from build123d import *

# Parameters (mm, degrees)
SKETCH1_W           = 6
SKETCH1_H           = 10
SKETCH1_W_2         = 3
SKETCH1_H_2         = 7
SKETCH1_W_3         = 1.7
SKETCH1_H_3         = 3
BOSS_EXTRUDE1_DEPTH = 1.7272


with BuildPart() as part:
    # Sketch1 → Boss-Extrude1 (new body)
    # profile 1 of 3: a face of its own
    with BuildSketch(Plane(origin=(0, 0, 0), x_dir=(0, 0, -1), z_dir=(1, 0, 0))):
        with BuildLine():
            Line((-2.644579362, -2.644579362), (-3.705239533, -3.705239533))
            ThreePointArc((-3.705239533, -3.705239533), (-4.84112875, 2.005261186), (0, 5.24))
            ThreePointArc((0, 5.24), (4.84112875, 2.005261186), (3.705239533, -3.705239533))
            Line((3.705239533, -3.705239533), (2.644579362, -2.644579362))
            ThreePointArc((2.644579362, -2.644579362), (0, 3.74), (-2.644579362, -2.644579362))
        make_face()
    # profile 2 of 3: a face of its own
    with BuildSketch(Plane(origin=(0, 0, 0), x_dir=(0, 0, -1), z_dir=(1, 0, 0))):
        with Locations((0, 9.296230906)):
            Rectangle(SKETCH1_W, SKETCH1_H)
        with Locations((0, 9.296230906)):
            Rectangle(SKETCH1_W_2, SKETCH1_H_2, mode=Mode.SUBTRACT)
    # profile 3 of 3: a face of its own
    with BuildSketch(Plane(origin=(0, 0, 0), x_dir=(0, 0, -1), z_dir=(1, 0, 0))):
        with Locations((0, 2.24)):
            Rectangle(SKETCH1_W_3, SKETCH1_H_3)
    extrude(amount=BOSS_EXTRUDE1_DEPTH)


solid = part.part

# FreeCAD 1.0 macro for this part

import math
import FreeCAD as App
import Part
import Sketcher


def add_polygon(sketch, points):
    """Adds a closed chain of lines whose ends are joined by coincident constraints."""
    first, n = sketch.GeometryCount, len(points)
    for a, b in zip(points, points[1:] + points[:1]):
        sketch.addGeometry(Part.LineSegment(App.Vector(*a, 0), App.Vector(*b, 0)), False)
    for i in range(n):
        sketch.addConstraint(Sketcher.Constraint("Coincident", first + i, 2, first + (i + 1) % n, 1))

doc = App.newDocument("Part")
body = doc.addObject("PartDesign::Body", "Body")

sketch1 = doc.addObject("Sketcher::SketchObject", "Sketch")
body.addObject(sketch1)
sketch1.AttachmentSupport = (doc.YZ_Plane, [""])
sketch1.MapMode = "FlatFace"
sketch1.addGeometry(Part.ArcOfCircle(Part.Circle(App.Vector(0, 0, 0), App.Vector(0, 0, 1), 3.7), math.radians(13), math.radians(135)), False)
sketch1.addGeometry(Part.LineSegment(App.Vector(3.6, 0.8, 0), App.Vector(0.7, 0.8, 0)), False)
sketch1.addGeometry(Part.LineSegment(App.Vector(0.7, 0.8, 0), App.Vector(0.7, -0.8, 0)), False)
sketch1.addGeometry(Part.LineSegment(App.Vector(0.7, -0.8, 0), App.Vector(3.6, -0.8, 0)), False)
sketch1.addGeometry(Part.ArcOfCircle(Part.Circle(App.Vector(0, 0, 0), App.Vector(0, 0, 1), 3.7), math.radians(-135), math.radians(-13)), False)
sketch1.addGeometry(Part.LineSegment(App.Vector(-2.6, -2.6, 0), App.Vector(-3.7, -3.7, 0)), False)
sketch1.addGeometry(Part.ArcOfCircle(Part.Circle(App.Vector(0, 0, 0), App.Vector(0, 0, 1), 5.2), math.radians(-135), math.radians(-35)), False)
sketch1.addGeometry(Part.LineSegment(App.Vector(4.3, -3, 0), App.Vector(14.3, -3, 0)), False)
sketch1.addGeometry(Part.LineSegment(App.Vector(14.3, -3, 0), App.Vector(14.3, 3, 0)), False)
sketch1.addGeometry(Part.LineSegment(App.Vector(14.3, 3, 0), App.Vector(4.3, 3, 0)), False)
sketch1.addGeometry(Part.ArcOfCircle(Part.Circle(App.Vector(0, 0, 0), App.Vector(0, 0, 1), 5.2), math.radians(35), math.radians(135)), False)
sketch1.addGeometry(Part.LineSegment(App.Vector(-3.7, 3.7, 0), App.Vector(-2.6, 2.6, 0)), False)
add_polygon(sketch1, [(12.8, -1.5), (5.8, -1.5), (5.8, 1.5), (12.8, 1.5)])
sketch1.addConstraint([
    Sketcher.Constraint("Coincident", 0, 1, 1, 1),
    Sketcher.Constraint("Coincident", 1, 2, 2, 1),
    Sketcher.Constraint("Coincident", 2, 2, 3, 1),
    Sketcher.Constraint("Coincident", 3, 2, 4, 2),
    Sketcher.Constraint("Coincident", 4, 1, 5, 1),
    Sketcher.Constraint("Coincident", 5, 2, 6, 1),
    Sketcher.Constraint("Coincident", 6, 2, 7, 1),
    Sketcher.Constraint("Coincident", 7, 2, 8, 1),
    Sketcher.Constraint("Coincident", 8, 2, 9, 1),
    Sketcher.Constraint("Coincident", 9, 2, 10, 1),
    Sketcher.Constraint("Coincident", 10, 2, 11, 1),
    Sketcher.Constraint("Coincident", 11, 2, 0, 2),
    Sketcher.Constraint("Horizontal", 1),
    Sketcher.Constraint("Vertical", 2),
    Sketcher.Constraint("Horizontal", 3),
    Sketcher.Constraint("Horizontal", 7),
    Sketcher.Constraint("Vertical", 8),
    Sketcher.Constraint("Horizontal", 9),
    Sketcher.Constraint("Horizontal", 12),
    Sketcher.Constraint("Vertical", 13),
    Sketcher.Constraint("Horizontal", 14),
    Sketcher.Constraint("Vertical", 15),
    Sketcher.Constraint("Coincident", 0, 3, -1, 1),
    Sketcher.Constraint("Coincident", 4, 3, -1, 1),
    Sketcher.Constraint("Coincident", 6, 3, -1, 1),
    Sketcher.Constraint("Coincident", 10, 3, -1, 1),
    Sketcher.Constraint("Equal", 0, 4),
    Sketcher.Constraint("Equal", 6, 10),
    Sketcher.Constraint("Perpendicular", 5, 11),
    Sketcher.Constraint("Vertical", 0, 1, 3, 2),
    Sketcher.Constraint("Vertical", 6, 2, 9, 2),
    Sketcher.Constraint("Vertical", 5, 2, 10, 2),
    Sketcher.Constraint("Vertical", 4, 1, 11, 2),
    Sketcher.Constraint("DistanceX", 7, 1, 7, 2, 10.0),
    Sketcher.Constraint("DistanceX", 12, 2, 12, 1, 7.0),
    Sketcher.Constraint("DistanceY", 8, 1, 8, 2, 6.0),
    Sketcher.Constraint("DistanceY", 13, 1, 13, 2, 3.0),
    Sketcher.Constraint("Radius", 0, 3.74),
    Sketcher.Constraint("Radius", 6, 5.24),
    Sketcher.Constraint("DistanceY", 2, 2, 2, 1, 1.7),
    Sketcher.Constraint("DistanceY", 12, 2, -1, 1, 1.5),
    Sketcher.Constraint("DistanceX", 6, 2, 12, 2, 1.5),
    Sketcher.Constraint("DistanceX", -1, 1, 1, 2, 0.74),
    Sketcher.Constraint("DistanceX", 4, 1, -1, 1, 2.644579),
])
pad1 = doc.addObject("PartDesign::Pad", "Pad")
body.addObject(pad1)
pad1.Profile = sketch1
pad1.Length = 1.7272

doc.recompute()
